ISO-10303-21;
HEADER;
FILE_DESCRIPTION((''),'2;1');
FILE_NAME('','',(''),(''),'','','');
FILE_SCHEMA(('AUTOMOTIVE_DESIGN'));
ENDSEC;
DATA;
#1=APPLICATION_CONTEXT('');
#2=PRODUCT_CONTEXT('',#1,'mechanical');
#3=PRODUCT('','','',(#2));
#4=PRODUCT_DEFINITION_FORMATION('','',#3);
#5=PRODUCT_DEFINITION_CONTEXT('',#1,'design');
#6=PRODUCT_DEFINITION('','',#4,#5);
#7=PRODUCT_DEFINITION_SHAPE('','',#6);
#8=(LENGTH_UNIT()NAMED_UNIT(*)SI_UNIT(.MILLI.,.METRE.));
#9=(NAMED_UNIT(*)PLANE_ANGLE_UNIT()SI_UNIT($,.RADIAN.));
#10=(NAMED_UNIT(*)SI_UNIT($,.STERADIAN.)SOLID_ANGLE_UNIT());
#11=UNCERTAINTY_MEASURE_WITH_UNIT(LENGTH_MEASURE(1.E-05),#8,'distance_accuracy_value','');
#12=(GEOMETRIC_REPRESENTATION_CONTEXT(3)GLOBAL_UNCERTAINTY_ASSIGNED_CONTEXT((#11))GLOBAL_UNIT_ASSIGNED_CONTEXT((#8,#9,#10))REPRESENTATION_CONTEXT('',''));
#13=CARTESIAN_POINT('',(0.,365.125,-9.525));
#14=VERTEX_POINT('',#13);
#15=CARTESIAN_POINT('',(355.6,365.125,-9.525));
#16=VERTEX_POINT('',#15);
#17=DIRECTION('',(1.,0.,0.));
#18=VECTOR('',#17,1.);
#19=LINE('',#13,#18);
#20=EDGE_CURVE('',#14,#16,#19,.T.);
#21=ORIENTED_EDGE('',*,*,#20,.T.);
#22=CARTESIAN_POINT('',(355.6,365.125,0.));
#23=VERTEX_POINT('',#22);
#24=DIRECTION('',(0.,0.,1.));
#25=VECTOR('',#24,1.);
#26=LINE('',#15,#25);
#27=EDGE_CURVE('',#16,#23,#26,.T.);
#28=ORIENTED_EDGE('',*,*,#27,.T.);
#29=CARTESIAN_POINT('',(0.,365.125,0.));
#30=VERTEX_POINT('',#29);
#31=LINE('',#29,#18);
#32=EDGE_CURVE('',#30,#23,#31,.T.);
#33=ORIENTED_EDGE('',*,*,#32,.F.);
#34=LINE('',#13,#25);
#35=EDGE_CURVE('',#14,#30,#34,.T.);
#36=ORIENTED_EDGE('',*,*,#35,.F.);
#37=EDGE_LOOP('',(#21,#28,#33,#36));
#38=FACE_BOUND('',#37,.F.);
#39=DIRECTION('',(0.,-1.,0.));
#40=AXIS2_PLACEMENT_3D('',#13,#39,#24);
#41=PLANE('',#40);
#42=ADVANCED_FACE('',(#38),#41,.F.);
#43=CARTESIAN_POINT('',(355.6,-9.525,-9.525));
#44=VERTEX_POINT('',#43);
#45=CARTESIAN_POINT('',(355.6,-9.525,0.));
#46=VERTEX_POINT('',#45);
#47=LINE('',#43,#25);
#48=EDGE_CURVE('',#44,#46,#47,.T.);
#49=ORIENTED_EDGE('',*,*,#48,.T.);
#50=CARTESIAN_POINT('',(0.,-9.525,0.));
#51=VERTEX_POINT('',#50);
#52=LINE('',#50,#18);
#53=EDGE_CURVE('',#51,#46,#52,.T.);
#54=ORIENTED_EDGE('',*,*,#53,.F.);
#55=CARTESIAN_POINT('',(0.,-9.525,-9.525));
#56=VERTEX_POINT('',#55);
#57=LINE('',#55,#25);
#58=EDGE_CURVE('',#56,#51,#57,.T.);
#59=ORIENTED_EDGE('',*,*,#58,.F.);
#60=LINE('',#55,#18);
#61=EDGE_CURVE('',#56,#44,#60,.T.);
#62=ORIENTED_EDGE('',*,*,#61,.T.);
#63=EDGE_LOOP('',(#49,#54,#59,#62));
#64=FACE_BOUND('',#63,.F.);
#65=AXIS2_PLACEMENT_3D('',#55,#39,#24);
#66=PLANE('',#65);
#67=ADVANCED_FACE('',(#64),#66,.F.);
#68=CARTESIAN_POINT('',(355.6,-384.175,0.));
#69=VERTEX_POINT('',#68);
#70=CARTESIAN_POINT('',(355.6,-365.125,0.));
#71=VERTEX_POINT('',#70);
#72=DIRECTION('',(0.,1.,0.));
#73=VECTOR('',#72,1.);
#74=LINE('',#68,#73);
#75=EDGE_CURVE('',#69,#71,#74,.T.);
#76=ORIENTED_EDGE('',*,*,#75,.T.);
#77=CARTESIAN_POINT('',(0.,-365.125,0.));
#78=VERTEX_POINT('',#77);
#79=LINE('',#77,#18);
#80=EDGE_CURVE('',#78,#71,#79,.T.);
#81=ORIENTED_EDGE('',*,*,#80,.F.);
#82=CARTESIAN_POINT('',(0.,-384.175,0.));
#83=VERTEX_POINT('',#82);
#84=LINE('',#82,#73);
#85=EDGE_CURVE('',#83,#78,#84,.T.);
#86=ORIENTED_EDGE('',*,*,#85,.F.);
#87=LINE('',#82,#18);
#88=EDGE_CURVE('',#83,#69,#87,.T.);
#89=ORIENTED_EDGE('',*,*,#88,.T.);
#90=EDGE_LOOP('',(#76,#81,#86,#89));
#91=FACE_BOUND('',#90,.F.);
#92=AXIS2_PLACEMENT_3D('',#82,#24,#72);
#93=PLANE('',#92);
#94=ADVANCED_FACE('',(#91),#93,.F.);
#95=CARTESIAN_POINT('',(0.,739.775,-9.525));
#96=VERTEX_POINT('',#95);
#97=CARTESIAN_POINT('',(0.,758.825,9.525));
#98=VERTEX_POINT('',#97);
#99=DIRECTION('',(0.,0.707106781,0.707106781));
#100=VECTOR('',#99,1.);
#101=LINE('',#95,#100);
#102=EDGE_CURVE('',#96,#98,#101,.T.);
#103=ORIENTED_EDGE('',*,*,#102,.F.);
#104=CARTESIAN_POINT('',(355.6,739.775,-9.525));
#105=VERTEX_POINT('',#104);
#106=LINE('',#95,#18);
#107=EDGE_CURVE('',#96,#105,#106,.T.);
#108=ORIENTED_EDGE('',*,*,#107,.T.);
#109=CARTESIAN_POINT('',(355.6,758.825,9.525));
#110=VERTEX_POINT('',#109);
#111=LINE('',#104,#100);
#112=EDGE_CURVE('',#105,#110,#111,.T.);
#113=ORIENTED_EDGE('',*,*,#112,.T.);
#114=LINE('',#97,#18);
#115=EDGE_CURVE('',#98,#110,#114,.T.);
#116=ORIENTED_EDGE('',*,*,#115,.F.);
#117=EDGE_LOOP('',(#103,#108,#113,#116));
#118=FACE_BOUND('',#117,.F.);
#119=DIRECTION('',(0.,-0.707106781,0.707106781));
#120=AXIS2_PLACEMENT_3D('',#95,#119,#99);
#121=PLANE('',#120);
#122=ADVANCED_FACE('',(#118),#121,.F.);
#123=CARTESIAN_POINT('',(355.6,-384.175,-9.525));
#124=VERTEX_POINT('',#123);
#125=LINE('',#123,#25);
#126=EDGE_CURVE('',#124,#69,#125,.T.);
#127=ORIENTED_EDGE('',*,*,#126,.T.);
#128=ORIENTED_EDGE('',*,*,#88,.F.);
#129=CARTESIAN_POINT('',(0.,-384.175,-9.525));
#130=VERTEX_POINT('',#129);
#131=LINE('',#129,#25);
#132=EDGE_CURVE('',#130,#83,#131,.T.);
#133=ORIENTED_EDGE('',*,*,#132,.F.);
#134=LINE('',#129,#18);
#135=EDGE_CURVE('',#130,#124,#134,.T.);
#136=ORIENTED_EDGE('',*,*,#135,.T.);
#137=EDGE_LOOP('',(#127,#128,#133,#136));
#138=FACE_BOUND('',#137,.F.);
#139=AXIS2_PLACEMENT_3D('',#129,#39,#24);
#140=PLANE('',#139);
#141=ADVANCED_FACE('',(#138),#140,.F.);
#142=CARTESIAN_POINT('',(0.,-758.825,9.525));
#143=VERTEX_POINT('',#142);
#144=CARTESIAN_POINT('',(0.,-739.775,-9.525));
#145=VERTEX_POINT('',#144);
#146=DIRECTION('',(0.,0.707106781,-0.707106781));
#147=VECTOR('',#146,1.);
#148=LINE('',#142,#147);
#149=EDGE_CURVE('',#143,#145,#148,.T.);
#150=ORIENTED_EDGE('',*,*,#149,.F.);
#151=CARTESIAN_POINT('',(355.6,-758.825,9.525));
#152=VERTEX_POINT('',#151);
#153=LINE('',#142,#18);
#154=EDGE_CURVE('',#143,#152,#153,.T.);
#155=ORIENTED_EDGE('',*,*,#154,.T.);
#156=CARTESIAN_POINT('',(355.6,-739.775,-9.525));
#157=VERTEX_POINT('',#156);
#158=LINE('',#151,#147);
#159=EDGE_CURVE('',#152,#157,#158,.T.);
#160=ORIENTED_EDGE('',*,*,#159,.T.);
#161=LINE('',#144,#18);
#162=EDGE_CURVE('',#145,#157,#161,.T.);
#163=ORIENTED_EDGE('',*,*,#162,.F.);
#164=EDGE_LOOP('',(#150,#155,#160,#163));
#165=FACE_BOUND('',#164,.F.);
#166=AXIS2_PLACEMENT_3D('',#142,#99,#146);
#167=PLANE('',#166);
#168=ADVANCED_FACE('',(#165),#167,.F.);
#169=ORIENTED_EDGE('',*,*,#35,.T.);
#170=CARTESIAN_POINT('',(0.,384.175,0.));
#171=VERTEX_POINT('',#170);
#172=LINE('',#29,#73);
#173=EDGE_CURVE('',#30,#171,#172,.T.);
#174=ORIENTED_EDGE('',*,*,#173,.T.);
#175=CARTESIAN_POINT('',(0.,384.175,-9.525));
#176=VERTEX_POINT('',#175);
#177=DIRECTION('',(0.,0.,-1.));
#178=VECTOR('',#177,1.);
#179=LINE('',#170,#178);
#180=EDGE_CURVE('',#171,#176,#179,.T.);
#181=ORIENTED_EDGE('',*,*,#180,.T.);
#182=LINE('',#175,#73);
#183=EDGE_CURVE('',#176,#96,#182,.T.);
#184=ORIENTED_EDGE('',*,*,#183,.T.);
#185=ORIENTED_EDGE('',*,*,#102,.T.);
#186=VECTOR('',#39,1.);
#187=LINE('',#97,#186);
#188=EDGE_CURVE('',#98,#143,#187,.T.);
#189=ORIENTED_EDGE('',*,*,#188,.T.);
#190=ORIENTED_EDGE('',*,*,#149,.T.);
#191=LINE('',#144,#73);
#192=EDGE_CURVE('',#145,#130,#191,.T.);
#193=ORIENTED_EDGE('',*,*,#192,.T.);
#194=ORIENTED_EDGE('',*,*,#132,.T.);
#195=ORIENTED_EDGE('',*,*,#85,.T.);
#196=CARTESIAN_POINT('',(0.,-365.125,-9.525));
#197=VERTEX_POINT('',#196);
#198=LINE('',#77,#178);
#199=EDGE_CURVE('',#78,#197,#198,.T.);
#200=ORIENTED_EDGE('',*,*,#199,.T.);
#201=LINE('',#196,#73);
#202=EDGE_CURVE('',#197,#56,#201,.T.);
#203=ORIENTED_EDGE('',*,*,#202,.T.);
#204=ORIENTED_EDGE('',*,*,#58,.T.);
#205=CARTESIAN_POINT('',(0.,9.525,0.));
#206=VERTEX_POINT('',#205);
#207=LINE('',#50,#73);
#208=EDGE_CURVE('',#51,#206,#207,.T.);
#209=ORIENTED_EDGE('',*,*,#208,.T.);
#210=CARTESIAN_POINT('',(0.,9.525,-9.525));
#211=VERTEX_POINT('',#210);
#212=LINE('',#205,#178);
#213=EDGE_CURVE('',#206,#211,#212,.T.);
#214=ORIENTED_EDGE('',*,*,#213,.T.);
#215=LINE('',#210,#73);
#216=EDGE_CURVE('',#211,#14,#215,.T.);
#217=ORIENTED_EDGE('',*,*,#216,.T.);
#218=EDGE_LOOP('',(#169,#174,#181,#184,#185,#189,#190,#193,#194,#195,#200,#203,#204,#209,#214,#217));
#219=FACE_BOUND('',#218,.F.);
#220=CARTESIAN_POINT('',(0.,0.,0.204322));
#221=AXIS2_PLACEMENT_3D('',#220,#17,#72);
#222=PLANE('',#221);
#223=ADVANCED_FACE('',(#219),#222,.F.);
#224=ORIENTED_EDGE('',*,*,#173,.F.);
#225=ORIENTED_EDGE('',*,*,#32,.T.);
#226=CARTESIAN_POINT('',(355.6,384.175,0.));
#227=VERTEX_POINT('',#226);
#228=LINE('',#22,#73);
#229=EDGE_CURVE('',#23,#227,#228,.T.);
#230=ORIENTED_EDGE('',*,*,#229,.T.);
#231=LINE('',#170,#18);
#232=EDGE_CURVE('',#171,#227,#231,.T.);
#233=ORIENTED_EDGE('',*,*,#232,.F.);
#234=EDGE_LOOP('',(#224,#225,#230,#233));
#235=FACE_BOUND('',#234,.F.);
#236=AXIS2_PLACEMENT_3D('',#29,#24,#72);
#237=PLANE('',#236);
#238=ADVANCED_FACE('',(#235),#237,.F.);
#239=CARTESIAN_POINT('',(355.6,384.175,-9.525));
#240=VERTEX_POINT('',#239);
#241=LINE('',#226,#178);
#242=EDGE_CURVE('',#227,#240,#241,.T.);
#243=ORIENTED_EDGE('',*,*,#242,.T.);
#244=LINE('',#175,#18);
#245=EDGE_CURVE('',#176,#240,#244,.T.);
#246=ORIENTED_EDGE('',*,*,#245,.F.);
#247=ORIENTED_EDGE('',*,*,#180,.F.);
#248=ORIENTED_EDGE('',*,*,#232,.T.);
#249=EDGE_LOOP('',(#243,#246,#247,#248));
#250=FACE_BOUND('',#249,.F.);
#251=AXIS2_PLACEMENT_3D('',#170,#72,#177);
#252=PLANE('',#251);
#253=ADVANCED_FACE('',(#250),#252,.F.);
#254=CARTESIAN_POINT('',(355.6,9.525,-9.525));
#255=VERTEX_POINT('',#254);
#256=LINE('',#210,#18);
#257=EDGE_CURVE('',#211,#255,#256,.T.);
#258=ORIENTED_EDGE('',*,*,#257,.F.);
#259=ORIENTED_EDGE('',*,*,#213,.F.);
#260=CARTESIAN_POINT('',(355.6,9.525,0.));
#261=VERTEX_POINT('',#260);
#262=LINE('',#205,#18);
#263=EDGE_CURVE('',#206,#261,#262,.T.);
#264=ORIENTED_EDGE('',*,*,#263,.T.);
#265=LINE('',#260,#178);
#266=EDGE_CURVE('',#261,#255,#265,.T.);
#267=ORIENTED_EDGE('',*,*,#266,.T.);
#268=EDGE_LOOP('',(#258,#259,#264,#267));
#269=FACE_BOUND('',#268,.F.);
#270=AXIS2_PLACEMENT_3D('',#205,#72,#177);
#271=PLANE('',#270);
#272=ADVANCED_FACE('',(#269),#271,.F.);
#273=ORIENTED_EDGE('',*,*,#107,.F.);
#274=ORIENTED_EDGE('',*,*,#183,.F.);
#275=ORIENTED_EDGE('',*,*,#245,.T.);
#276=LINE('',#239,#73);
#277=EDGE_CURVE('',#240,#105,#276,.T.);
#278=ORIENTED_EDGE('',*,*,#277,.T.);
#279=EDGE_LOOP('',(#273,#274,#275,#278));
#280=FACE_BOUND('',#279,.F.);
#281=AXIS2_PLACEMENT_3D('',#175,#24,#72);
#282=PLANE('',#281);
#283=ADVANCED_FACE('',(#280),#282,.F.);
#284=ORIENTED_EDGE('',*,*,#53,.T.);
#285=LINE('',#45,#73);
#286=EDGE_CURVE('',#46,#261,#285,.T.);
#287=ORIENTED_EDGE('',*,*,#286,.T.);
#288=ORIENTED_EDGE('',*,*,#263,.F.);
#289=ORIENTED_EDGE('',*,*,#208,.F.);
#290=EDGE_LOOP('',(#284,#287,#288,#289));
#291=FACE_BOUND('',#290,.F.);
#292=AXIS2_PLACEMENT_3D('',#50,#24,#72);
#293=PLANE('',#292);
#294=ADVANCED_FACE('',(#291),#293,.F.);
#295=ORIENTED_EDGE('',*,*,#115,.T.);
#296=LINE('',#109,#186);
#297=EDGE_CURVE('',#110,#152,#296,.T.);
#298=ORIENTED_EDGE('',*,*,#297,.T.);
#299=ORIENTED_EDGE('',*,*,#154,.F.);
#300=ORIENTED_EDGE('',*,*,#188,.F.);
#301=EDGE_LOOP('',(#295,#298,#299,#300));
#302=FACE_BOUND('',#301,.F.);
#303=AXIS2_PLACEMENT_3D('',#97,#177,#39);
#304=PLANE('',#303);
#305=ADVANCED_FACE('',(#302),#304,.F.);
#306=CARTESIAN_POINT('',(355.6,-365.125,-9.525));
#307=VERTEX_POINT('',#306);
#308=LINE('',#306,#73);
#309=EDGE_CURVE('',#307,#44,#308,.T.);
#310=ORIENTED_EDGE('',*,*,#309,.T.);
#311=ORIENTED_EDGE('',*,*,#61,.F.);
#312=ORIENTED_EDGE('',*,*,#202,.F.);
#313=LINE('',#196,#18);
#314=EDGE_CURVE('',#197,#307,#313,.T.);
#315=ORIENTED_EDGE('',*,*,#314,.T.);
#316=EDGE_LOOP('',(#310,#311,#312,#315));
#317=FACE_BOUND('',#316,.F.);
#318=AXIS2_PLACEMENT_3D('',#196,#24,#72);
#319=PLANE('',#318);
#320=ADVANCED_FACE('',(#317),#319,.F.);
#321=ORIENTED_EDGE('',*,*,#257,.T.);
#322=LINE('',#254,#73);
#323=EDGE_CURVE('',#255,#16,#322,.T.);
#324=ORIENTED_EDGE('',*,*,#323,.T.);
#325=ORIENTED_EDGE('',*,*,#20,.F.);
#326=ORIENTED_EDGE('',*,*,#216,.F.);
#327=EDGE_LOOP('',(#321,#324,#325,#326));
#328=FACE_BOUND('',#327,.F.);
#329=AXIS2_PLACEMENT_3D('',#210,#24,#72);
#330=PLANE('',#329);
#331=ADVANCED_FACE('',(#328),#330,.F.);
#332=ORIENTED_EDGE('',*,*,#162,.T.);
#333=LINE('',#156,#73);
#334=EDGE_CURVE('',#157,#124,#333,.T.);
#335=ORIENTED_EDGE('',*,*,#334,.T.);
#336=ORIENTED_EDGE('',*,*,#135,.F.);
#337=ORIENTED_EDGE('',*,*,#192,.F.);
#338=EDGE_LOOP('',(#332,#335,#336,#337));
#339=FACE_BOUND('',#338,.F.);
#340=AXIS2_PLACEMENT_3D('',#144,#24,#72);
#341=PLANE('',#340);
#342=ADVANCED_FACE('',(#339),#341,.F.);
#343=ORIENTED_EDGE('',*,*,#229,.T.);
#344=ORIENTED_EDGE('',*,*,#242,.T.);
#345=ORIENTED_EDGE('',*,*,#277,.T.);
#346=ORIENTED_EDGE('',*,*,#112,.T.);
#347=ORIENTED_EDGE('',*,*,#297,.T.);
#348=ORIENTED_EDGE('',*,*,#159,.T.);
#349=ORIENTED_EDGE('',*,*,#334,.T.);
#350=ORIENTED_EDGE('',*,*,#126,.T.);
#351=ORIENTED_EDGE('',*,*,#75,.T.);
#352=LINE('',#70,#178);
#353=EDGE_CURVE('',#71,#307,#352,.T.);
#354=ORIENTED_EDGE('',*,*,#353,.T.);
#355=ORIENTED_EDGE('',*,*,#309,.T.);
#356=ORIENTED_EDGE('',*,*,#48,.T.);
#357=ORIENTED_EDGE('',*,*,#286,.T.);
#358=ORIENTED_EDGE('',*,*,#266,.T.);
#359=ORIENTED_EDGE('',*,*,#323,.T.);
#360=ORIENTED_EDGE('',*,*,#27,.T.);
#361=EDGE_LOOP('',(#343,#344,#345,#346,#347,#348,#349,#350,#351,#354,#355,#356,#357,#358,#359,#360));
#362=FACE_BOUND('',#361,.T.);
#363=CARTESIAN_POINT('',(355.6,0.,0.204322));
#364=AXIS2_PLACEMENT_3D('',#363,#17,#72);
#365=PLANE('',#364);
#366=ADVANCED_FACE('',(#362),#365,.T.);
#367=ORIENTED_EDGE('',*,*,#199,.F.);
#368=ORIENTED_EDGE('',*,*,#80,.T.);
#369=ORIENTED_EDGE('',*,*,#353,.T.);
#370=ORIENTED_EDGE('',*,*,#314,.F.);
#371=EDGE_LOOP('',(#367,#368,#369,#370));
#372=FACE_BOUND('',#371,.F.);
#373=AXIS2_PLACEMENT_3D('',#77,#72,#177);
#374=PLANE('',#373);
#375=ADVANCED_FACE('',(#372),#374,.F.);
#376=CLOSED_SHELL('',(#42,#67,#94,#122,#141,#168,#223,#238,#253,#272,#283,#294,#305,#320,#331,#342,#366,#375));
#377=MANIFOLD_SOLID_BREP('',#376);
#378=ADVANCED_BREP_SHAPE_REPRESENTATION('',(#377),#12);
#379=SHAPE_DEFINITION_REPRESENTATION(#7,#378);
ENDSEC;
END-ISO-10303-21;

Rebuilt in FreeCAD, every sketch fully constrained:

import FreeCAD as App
import Part
import Sketcher
Q = App.Units.Quantity

doc = App.newDocument("Part")
body = doc.addObject("PartDesign::Body", "Body")

# Sketch on YZ plane
sketch1 = body.newObject("Sketcher::SketchObject", "Sketch")
sketch1.AttachmentSupport = (doc.getObject("YZ_Plane"), [""])
sketch1.MapMode = "FlatFace"
sketch1.addGeometry([
    Part.LineSegment(App.Vector(739.775, -9.525, 0), App.Vector(758.825, 9.525, 0)),  # 0
    Part.LineSegment(App.Vector(758.825, 9.525, 0), App.Vector(-758.825, 9.525, 0)),  # 1
    Part.LineSegment(App.Vector(-758.825, 9.525, 0), App.Vector(-739.775, -9.525, 0)),  # 2
    Part.LineSegment(App.Vector(-739.775, -9.525, 0), App.Vector(-384.175, -9.525, 0)),  # 3
    Part.LineSegment(App.Vector(-384.175, -9.525, 0), App.Vector(-384.175, 0, 0)),  # 4
    Part.LineSegment(App.Vector(-384.175, 0, 0), App.Vector(-365.125, 0, 0)),  # 5
    Part.LineSegment(App.Vector(-365.125, 0, 0), App.Vector(-365.125, -9.525, 0)),  # 6
    Part.LineSegment(App.Vector(-365.125, -9.525, 0), App.Vector(-9.525, -9.525, 0)),  # 7
    Part.LineSegment(App.Vector(-9.525, -9.525, 0), App.Vector(-9.525, 0, 0)),  # 8
    Part.LineSegment(App.Vector(-9.525, 0, 0), App.Vector(9.525, 0, 0)),  # 9
    Part.LineSegment(App.Vector(9.525, 0, 0), App.Vector(9.525, -9.525, 0)),  # 10
    Part.LineSegment(App.Vector(9.525, -9.525, 0), App.Vector(365.125, -9.525, 0)),  # 11
    Part.LineSegment(App.Vector(365.125, -9.525, 0), App.Vector(365.125, 0, 0)),  # 12
    Part.LineSegment(App.Vector(365.125, 0, 0), App.Vector(384.175, 0, 0)),  # 13
    Part.LineSegment(App.Vector(384.175, 0, 0), App.Vector(384.175, -9.525, 0)),  # 14
    Part.LineSegment(App.Vector(384.175, -9.525, 0), App.Vector(739.775, -9.525, 0)),  # 15
], False)
sketch1.addConstraint([
    Sketcher.Constraint("Coincident", 0, 2, 1, 1),
    Sketcher.Constraint("Coincident", 1, 2, 2, 1),
    Sketcher.Constraint("Coincident", 2, 2, 3, 1),
    Sketcher.Constraint("Coincident", 3, 2, 4, 1),
    Sketcher.Constraint("Coincident", 4, 2, 5, 1),
    Sketcher.Constraint("Coincident", 5, 2, 6, 1),
    Sketcher.Constraint("Coincident", 6, 2, 7, 1),
    Sketcher.Constraint("Coincident", 7, 2, 8, 1),
    Sketcher.Constraint("Coincident", 8, 2, 9, 1),
    Sketcher.Constraint("Coincident", 9, 2, 10, 1),
    Sketcher.Constraint("Coincident", 10, 2, 11, 1),
    Sketcher.Constraint("Coincident", 11, 2, 12, 1),
    Sketcher.Constraint("Coincident", 12, 2, 13, 1),
    Sketcher.Constraint("Coincident", 13, 2, 14, 1),
    Sketcher.Constraint("Coincident", 14, 2, 15, 1),
    Sketcher.Constraint("Coincident", 15, 2, 0, 1),
    Sketcher.Constraint("Horizontal", 1),
    Sketcher.Constraint("Horizontal", 3),
    Sketcher.Constraint("Vertical", 4),
    Sketcher.Constraint("Horizontal", 5),
    Sketcher.Constraint("Vertical", 6),
    Sketcher.Constraint("Horizontal", 7),
    Sketcher.Constraint("Vertical", 8),
    Sketcher.Constraint("Horizontal", 9),
    Sketcher.Constraint("Vertical", 10),
    Sketcher.Constraint("Horizontal", 11),
    Sketcher.Constraint("Vertical", 12),
    Sketcher.Constraint("Horizontal", 13),
    Sketcher.Constraint("Vertical", 14),
    Sketcher.Constraint("Horizontal", 15),
    Sketcher.Constraint("Symmetric", 8, 2, 9, 2, -1, 1),
    Sketcher.Constraint("Symmetric", 5, 2, 12, 2, -1, 1),
    Sketcher.Constraint("Symmetric", 4, 2, 13, 2, -2),
    Sketcher.Constraint("Symmetric", 2, 2, 15, 2, -2),
    Sketcher.Constraint("Perpendicular", 0, 2),
    Sketcher.Constraint("Horizontal", 3, 2, 6, 2),
    Sketcher.Constraint("Horizontal", 7, 2, 10, 2),
    Sketcher.Constraint("Equal", 3, 7),
    Sketcher.Constraint("Equal", 5, 9),
    Sketcher.Constraint("Equal", 0, 2),
    Sketcher.Constraint("DistanceX", 3, 1, 3, 2, Q("14 in")),
    Sketcher.Constraint("DistanceX", 2, 2, 0, 2, Q("59 in")),
    Sketcher.Constraint("DistanceX", 1, 2, 1, 1, Q("59.75 in")),
    Sketcher.Constraint("DistanceY", 4, 1, 4, 2, Q("0.375 in")),
])
pad1 = body.newObject("PartDesign::Pad", "Pad")
pad1.Profile = sketch1
pad1.Length = Q("14 in")

doc.recompute()
